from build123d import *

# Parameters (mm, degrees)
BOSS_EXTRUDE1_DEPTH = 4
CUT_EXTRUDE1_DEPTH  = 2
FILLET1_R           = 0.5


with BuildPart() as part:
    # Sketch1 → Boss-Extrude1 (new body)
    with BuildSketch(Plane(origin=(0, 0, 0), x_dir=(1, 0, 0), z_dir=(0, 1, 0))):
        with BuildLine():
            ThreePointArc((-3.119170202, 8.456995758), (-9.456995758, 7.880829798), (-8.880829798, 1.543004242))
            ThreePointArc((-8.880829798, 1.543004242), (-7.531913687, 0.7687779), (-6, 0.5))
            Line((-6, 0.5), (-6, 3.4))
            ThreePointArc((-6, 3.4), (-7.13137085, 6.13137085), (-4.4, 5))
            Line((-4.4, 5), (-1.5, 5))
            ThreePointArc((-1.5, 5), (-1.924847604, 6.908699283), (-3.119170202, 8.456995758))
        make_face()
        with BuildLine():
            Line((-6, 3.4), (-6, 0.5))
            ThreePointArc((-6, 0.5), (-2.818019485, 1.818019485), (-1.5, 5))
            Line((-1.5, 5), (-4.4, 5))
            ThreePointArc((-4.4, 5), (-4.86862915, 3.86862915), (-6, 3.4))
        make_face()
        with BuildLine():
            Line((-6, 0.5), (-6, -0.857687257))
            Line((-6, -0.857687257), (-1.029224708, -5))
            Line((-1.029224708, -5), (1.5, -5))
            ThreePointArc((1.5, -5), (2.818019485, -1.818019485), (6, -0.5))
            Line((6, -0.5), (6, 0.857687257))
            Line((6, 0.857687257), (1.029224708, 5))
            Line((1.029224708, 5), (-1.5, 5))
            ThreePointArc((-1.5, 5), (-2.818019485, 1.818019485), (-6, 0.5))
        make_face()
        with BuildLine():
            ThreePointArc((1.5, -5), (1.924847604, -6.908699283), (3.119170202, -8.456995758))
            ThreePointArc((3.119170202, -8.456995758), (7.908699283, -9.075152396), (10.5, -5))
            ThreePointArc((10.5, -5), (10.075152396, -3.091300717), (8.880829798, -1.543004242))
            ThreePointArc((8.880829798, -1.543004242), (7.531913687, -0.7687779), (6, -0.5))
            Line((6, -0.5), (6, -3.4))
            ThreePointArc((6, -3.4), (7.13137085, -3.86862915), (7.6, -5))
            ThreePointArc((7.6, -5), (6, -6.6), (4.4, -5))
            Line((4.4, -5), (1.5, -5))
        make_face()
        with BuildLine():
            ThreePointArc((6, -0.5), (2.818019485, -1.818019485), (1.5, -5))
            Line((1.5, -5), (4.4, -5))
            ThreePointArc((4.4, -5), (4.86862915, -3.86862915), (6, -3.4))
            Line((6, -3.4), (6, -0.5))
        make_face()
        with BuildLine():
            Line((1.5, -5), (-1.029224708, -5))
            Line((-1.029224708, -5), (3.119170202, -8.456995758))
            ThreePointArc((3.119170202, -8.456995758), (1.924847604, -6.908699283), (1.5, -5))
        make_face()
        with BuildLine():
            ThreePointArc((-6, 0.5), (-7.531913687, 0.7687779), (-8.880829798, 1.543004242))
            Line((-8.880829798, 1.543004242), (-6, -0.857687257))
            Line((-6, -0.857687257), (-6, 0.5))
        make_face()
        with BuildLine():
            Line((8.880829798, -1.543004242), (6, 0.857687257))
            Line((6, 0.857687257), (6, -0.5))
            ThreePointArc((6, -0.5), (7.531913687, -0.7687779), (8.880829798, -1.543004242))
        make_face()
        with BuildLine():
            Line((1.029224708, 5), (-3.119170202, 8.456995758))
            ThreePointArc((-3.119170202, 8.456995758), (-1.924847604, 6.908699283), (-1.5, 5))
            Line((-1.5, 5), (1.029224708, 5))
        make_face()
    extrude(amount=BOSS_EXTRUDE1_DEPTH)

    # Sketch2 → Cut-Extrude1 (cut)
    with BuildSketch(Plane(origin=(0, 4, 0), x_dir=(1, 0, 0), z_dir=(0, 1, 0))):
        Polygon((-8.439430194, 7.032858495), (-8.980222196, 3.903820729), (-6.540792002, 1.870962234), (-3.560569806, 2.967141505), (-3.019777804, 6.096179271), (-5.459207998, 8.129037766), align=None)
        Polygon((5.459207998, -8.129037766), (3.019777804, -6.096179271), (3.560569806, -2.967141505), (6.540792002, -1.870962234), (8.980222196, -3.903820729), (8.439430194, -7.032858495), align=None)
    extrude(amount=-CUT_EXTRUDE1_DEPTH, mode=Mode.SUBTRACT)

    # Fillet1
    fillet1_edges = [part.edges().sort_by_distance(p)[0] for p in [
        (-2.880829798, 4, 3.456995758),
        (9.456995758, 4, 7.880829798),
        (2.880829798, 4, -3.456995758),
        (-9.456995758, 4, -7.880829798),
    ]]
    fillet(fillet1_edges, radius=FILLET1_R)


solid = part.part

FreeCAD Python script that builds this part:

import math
import FreeCAD as App
import Part
import Sketcher
from FreeCAD import Vector


def edges_at(feature, points):
    """Names of the edges that pass closest to the given points."""
    edges = feature.Shape.Edges
    near = lambda p: min(range(len(edges)), key=lambda i: edges[i].distToShape(Part.Vertex(*p))[0])
    return sorted({f"Edge{near(p) + 1}" for p in points})


def add_polygon(sketch, points):
    """Adds a closed chain of lines whose ends are joined by coincident constraints."""
    first, n = sketch.GeometryCount, len(points)
    for a, b in zip(points, points[1:] + points[:1]):
        sketch.addGeometry(Part.LineSegment(App.Vector(*a, 0), App.Vector(*b, 0)), False)
    for i in range(n):
        sketch.addConstraint(Sketcher.Constraint("Coincident", first + i, 2, first + (i + 1) % n, 1))

doc = App.newDocument("Part")
params = doc.addObject("Spreadsheet::Sheet", "Params")
for row, (alias, value) in enumerate([
    ("sketch1_radius", "4.5 mm"),
    ("sketch1_radius2", "1.6 mm"),
    ("pad1_length", "4 mm"),
    ("pocket1_length", "2 mm"),
    ("fillet_radius", "0.5 mm"),
], start=1):
    params.set(f"A{row}", alias)
    params.set(f"B{row}", "=" + value)
    params.setAlias(f"B{row}", alias)

body = doc.addObject("PartDesign::Body", "Body")

# Sketch on XZ plane
sketch1 = body.newObject("Sketcher::SketchObject", "Sketch")
sketch1.AttachmentSupport = (doc.getObject("XZ_Plane"), [""])
sketch1.MapMode = "FlatFace"
sketch1.addGeometry([
    Part.ArcOfCircle(Part.Circle(Vector(-6, -5, 0), Vector(0, 0, 1), 4.5), math.radians(130), math.radians(310)),  # 0
    Part.LineSegment(Vector(-8.9, -1.5, 0), Vector(-6, 0.9, 0)),  # 1
    Part.LineSegment(Vector(-6, 0.9, 0), Vector(-1, 5, 0)),  # 2
    Part.LineSegment(Vector(-1, 5, 0), Vector(3.1, 8.5, 0)),  # 3
    Part.ArcOfCircle(Part.Circle(Vector(6, 5, 0), Vector(0, 0, 1), 4.5), math.radians(0), math.radians(130)),  # 4
    Part.ArcOfCircle(Part.Circle(Vector(6, 5, 0), Vector(0, 0, 1), 4.5), math.radians(-50), math.radians(0)),  # 5
    Part.LineSegment(Vector(8.9, 1.5, 0), Vector(6, -0.9, 0)),  # 6
    Part.LineSegment(Vector(6, -0.9, 0), Vector(1, -5, 0)),  # 7
    Part.LineSegment(Vector(1, -5, 0), Vector(-3.1, -8.5, 0)),  # 8
    Part.ArcOfCircle(Part.Circle(Vector(-6, -5, 0), Vector(0, 0, 1), 1.6), math.radians(90), math.radians(360)),  # 9
    Part.ArcOfCircle(Part.Circle(Vector(-6, -5, 0), Vector(0, 0, 1), 1.6), math.radians(0), math.radians(90)),  # 10
    Part.ArcOfCircle(Part.Circle(Vector(6, 5, 0), Vector(0, 0, 1), 1.6), math.radians(180), math.radians(270)),  # 11
    Part.ArcOfCircle(Part.Circle(Vector(6, 5, 0), Vector(0, 0, 1), 1.6), math.radians(-90), math.radians(0)),  # 12
    Part.ArcOfCircle(Part.Circle(Vector(6, 5, 0), Vector(0, 0, 1), 1.6), math.radians(0), math.radians(180)),  # 13
], False)
sketch1.addConstraint([
    Sketcher.Constraint("Tangent", 0, 1, 1, 1),
    Sketcher.Constraint("Coincident", 1, 2, 2, 1),
    Sketcher.Constraint("Coincident", 2, 2, 3, 1),
    Sketcher.Constraint("Tangent", 3, 2, 4, 2),
    Sketcher.Constraint("Tangent", 4, 1, 5, 2),
    Sketcher.Constraint("Tangent", 5, 1, 6, 1),
    Sketcher.Constraint("Coincident", 6, 2, 7, 1),
    Sketcher.Constraint("Coincident", 7, 2, 8, 1),
    Sketcher.Constraint("Tangent", 8, 2, 0, 2),
    Sketcher.Constraint("Tangent", 9, 1, 10, 2),
    Sketcher.Constraint("Coincident", 10, 1, 9, 2),
    Sketcher.Constraint("Tangent", 11, 2, 12, 1),
    Sketcher.Constraint("Tangent", 12, 2, 13, 1),
    Sketcher.Constraint("Tangent", 13, 2, 11, 1),
    Sketcher.Constraint("Coincident", 9, 3, 0, 3),
    Sketcher.Constraint("Coincident", 11, 3, 4, 3),
    Sketcher.Constraint("Equal", 0, 4),
    Sketcher.Constraint("Equal", 4, 5),
    Sketcher.Constraint("Equal", 10, 11),
    Sketcher.Constraint("Symmetric", 0, 3, 4, 3, -1, 1),
    Sketcher.Constraint("Symmetric", 1, 2, 6, 2, -1, 1),
    Sketcher.Constraint("Symmetric", 2, 2, 7, 2, -1, 1),
    Sketcher.Constraint("Parallel", 1, 2),
    Sketcher.Constraint("Parallel", 2, 3),
    Sketcher.Constraint("Horizontal", 13, 3, 2, 2),
    Sketcher.Constraint("Horizontal", 2, 2, 4, 1),
    Sketcher.Constraint("Horizontal", 7, 2, 10, 1),
    Sketcher.Constraint("Horizontal", 4, 1, 12, 2),
    Sketcher.Constraint("Horizontal", 12, 2, 13, 2),
    Sketcher.Constraint("Vertical", 10, 3, 1, 2),
    Sketcher.Constraint("Vertical", 1, 2, 9, 1),
    Sketcher.Constraint("Vertical", 6, 2, 11, 2),
    Sketcher.Constraint("Radius", 0, 4.5),
    Sketcher.Constraint("Radius", 9, 1.6),
    Sketcher.Constraint("DistanceX", 0, 3, -1, 1, 6.0),
    Sketcher.Constraint("DistanceY", 0, 3, -1, 1, 5.0),
])
sketch1.setExpression("Constraints[32]", "Params.sketch1_radius")
sketch1.setExpression("Constraints[33]", "Params.sketch1_radius2")
pad1 = body.newObject("PartDesign::Pad", "Pad")
pad1.Profile = sketch1
pad1.setExpression("Length", "Params.pad1_length")
pad1.Reversed = True

# Sketch on XZ plane
sketch2 = body.newObject("Sketcher::SketchObject", "Sketch001")
sketch2.AttachmentSupport = (doc.getObject("XZ_Plane"), [""])
sketch2.MapMode = "FlatFace"
sketch2.AttachmentOffset = App.Placement(Vector(0, 0, -4), App.Rotation())
add_polygon(sketch2, [(-8.4, -7), (-9, -3.9), (-6.5, -1.9), (-3.6, -3), (-3, -6.1), (-5.5, -8.1)])  # lines 0-5
add_polygon(sketch2, [(3, 6.1), (5.5, 8.1), (8.4, 7), (9, 3.9), (6.5, 1.9), (3.6, 3)])  # lines 6-11
sketch2.addConstraint([
    Sketcher.Constraint("Symmetric", 4, 2, 6, 2, -1, 1),
    Sketcher.Constraint("Symmetric", 5, 2, 7, 2, -1, 1),
    Sketcher.Constraint("Symmetric", 0, 2, 8, 2, -1, 1),
    Sketcher.Constraint("Symmetric", 1, 2, 9, 2, -1, 1),
    Sketcher.Constraint("Symmetric", 2, 2, 10, 2, -1, 1),
    Sketcher.Constraint("Symmetric", 3, 2, 11, 2, -1, 1),
    Sketcher.Constraint("Parallel", 0, 3),
    Sketcher.Constraint("Parallel", 1, 4),
    Sketcher.Constraint("Parallel", 2, 5),
    Sketcher.Constraint("Equal", 0, 1),
    Sketcher.Constraint("Equal", 1, 2),
    Sketcher.Constraint("Equal", 2, 3),
    Sketcher.Constraint("DistanceX", 1, 2, 6, 2, 12.0),
    Sketcher.Constraint("DistanceY", 1, 2, 6, 2, 10.0),
    Sketcher.Constraint("DistanceY", 0, 2, -1, 1, 3.903821),
    Sketcher.Constraint("DistanceX", 2, 2, -1, 1, 3.56057),
    Sketcher.Constraint("DistanceY", 2, 2, -1, 1, 2.967142),
    Sketcher.Constraint("DistanceX", 0, 2, 1, 2, 2.43943),
])
pocket1 = body.newObject("PartDesign::Pocket", "Pocket")
pocket1.Profile = sketch2
pocket1.setExpression("Length", "Params.pocket1_length")
pocket1.Reversed = True
doc.recompute()

fillet = body.newObject("PartDesign::Fillet", "Fillet")
fillet.Base = (pocket1, edges_at(pocket1, [
    (-3.515, 4, 2.929),
    (7.909, 4, 9.075),
    (3.515, 4, -2.929),
    (-9.457, 4, -7.881),
]))
fillet.setExpression("Radius", "Params.fillet_radius")

doc.recompute()
